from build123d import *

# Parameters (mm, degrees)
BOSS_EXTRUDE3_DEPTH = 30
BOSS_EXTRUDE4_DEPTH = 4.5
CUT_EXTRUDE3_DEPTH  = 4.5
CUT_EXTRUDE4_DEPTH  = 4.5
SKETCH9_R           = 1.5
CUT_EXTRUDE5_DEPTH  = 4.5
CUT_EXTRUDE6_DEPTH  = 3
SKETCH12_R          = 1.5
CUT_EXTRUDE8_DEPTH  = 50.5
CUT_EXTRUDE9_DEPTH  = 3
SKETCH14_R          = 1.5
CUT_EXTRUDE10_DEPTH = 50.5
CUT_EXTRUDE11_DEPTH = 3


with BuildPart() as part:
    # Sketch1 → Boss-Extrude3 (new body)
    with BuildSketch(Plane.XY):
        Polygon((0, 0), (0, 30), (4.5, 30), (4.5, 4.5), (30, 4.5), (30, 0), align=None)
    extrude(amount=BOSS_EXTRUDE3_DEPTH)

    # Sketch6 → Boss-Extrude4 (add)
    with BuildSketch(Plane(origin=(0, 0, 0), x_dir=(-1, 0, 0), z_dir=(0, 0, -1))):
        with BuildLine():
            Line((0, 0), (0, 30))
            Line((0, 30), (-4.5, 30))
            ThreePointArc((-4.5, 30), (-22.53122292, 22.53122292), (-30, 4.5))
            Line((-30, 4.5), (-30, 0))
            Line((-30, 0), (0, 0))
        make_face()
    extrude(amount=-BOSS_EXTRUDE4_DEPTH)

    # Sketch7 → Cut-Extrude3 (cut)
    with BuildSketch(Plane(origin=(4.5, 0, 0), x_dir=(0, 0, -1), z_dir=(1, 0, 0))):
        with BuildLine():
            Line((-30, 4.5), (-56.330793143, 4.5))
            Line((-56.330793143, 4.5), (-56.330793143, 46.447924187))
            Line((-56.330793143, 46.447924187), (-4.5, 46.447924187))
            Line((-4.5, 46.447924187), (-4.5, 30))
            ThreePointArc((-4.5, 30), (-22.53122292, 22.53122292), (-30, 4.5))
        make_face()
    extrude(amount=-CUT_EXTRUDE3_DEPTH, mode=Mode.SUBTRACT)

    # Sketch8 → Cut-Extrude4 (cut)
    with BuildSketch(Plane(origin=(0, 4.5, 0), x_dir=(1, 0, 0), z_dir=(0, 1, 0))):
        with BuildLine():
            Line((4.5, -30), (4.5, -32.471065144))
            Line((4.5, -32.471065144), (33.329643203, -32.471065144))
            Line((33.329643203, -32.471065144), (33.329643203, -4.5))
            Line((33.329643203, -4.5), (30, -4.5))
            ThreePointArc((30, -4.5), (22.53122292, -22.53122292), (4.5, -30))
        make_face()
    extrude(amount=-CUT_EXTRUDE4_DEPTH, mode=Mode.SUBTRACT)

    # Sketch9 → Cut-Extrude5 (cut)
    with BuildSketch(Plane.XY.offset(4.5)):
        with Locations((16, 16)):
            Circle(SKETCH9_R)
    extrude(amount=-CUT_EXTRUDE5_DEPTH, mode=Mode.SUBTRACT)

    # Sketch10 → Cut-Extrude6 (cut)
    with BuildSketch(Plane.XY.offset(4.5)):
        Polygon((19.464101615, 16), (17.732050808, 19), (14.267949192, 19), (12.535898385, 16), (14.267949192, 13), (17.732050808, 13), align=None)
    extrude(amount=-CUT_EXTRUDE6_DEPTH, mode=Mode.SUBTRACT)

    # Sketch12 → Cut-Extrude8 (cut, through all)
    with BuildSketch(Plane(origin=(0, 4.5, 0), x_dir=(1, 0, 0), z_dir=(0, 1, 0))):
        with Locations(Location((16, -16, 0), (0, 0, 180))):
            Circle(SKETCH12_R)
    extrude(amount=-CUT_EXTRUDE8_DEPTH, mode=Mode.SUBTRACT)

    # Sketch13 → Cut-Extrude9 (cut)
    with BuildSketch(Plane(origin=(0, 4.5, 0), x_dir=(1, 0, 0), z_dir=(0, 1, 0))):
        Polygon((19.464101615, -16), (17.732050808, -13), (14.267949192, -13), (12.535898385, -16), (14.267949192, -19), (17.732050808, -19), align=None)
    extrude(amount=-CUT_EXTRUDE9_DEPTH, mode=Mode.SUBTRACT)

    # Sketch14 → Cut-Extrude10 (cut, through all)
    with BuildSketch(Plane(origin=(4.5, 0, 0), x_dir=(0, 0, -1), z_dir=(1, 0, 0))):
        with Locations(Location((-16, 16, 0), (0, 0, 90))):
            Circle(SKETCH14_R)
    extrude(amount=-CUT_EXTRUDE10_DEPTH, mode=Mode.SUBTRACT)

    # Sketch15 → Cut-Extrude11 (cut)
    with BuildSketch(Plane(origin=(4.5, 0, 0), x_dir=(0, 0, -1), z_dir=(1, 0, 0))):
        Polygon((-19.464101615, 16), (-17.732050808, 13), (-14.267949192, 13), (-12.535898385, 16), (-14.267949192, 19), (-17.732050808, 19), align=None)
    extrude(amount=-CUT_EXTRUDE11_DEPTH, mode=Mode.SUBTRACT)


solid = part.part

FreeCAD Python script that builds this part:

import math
import FreeCAD as App
import Part
import Sketcher

V = App.Vector
Q = App.Units.Quantity

doc = App.newDocument("Part")
params = doc.addObject("Spreadsheet::Sheet", "Params")
for row, (alias, value) in enumerate([
    ("sketch1_width", "30 mm"),
    ("sketch1_width2", "25.5 mm"),
    ("pad1_length", "30 mm"),
    ("sketch2_radius", "25.5 mm"),
    ("sketch2_width", "30 mm"),
    ("pad2_length", "4.5 mm"),
    ("sketch3_radius", "25.5 mm"),
    ("pocket1_length", "4.5 mm"),
    ("sketch4_radius", "25.5 mm"),
    ("pocket2_length", "4.5 mm"),
    ("sketch5_diameter", "3 mm"),
    ("pocket3_length", "4.5 mm"),
    ("pocket4_length", "3 mm"),
    ("sketch7_diameter", "3 mm"),
    ("pocket6_length", "3 mm"),
    ("sketch9_diameter", "3 mm"),
    ("pocket8_length", "3 mm"),
], start=1):
    params.set(f"A{row}", alias)
    params.set(f"B{row}", "=" + value)
    params.setAlias(f"B{row}", alias)

body = doc.addObject("PartDesign::Body", "Body")

sketch1 = doc.addObject("Sketcher::SketchObject", "Sketch")
body.addObject(sketch1)
sketch1.AttachmentSupport = (doc.XY_Plane, [""])
sketch1.MapMode = "FlatFace"
sketch1.addGeometry([
    Part.LineSegment(V(0, 30, 0), V(0, 0, 0)),
    Part.LineSegment(V(0, 0, 0), V(30, 0, 0)),
    Part.LineSegment(V(30, 0, 0), V(30, 4.5, 0)),
    Part.LineSegment(V(30, 4.5, 0), V(4.5, 4.5, 0)),
    Part.LineSegment(V(4.5, 4.5, 0), V(4.5, 30, 0)),
    Part.LineSegment(V(4.5, 30, 0), V(0, 30, 0)),
], False)
sketch1.addConstraint([
    Sketcher.Constraint("Coincident", 0, 2, 1, 1),
    Sketcher.Constraint("Coincident", 1, 2, 2, 1),
    Sketcher.Constraint("Coincident", 2, 2, 3, 1),
    Sketcher.Constraint("Coincident", 3, 2, 4, 1),
    Sketcher.Constraint("Coincident", 4, 2, 5, 1),
    Sketcher.Constraint("Coincident", 5, 2, 0, 1),
    Sketcher.Constraint("Vertical", 0),
    Sketcher.Constraint("Horizontal", 1),
    Sketcher.Constraint("Vertical", 2),
    Sketcher.Constraint("Horizontal", 3),
    Sketcher.Constraint("Vertical", 4),
    Sketcher.Constraint("Horizontal", 5),
    Sketcher.Constraint("Coincident", 0, 2, -1, 1),
    Sketcher.Constraint("Equal", 1, 0),
    Sketcher.Constraint("Equal", 5, 2),
    Sketcher.Constraint("DistanceX", 1, 1, 1, 2, Q("30 mm")),
    Sketcher.Constraint("DistanceX", 3, 2, 3, 1, Q("25.5 mm")),
])
sketch1.setExpression("Constraints[15]", "Params.sketch1_width")
sketch1.setExpression("Constraints[16]", "Params.sketch1_width2")
pad1 = doc.addObject("PartDesign::Pad", "Pad")
body.addObject(pad1)
pad1.Profile = sketch1
pad1.setExpression("Length", "Params.pad1_length")

sketch2 = doc.addObject("Sketcher::SketchObject", "Sketch001")
body.addObject(sketch2)
sketch2.AttachmentSupport = (doc.XY_Plane, [""])
sketch2.MapMode = "FlatFace"
sketch2.addGeometry([
    Part.LineSegment(V(0, 0, 0), V(0, 30, 0)),
    Part.LineSegment(V(0, 30, 0), V(4.5, 30, 0)),
    Part.ArcOfCircle(Part.Circle(V(4.5, 4.5, 0), V(0, 0, 1), 25.5), math.radians(0), math.radians(90)),
    Part.LineSegment(V(30, 4.5, 0), V(30, 0, 0)),
    Part.LineSegment(V(30, 0, 0), V(0, 0, 0)),
], False)
sketch2.addConstraint([
    Sketcher.Constraint("Coincident", 0, 2, 1, 1),
    Sketcher.Constraint("Tangent", 1, 2, 2, 2),
    Sketcher.Constraint("Tangent", 2, 1, 3, 1),
    Sketcher.Constraint("Coincident", 3, 2, 4, 1),
    Sketcher.Constraint("Coincident", 4, 2, 0, 1),
    Sketcher.Constraint("Vertical", 0),
    Sketcher.Constraint("Horizontal", 1),
    Sketcher.Constraint("Vertical", 3),
    Sketcher.Constraint("Horizontal", 4),
    Sketcher.Constraint("Coincident", 4, 2, -1, 1),
    Sketcher.Constraint("Equal", 4, 0),
    Sketcher.Constraint("Radius", 2, Q("25.5 mm")),
    Sketcher.Constraint("DistanceX", 4, 2, 4, 1, Q("30 mm")),
])
sketch2.setExpression("Constraints[11]", "Params.sketch2_radius")
sketch2.setExpression("Constraints[12]", "Params.sketch2_width")
pad2 = doc.addObject("PartDesign::Pad", "Pad001")
body.addObject(pad2)
pad2.Profile = sketch2
pad2.setExpression("Length", "Params.pad2_length")

sketch3 = doc.addObject("Sketcher::SketchObject", "Sketch002")
body.addObject(sketch3)
sketch3.AttachmentSupport = (doc.YZ_Plane, [""])
sketch3.MapMode = "FlatFace"
sketch3.AttachmentOffset = App.Placement(V(0, 0, 4.5), App.Rotation())
sketch3.addGeometry([
    Part.LineSegment(V(4, 56, 0), V(4, 30, 0)),
    Part.ArcOfCircle(Part.Circle(V(4, 4, 0), V(0, 0, 1), 26), math.radians(0), math.radians(90)),
    Part.LineSegment(V(30, 4, 0), V(46, 4, 0)),
    Part.LineSegment(V(46, 4, 0), V(46, 56, 0)),
    Part.LineSegment(V(46, 56, 0), V(4, 56, 0)),
], False)
sketch3.addConstraint([
    Sketcher.Constraint("Coincident", 0, 2, 1, 2),
    Sketcher.Constraint("Coincident", 1, 1, 2, 1),
    Sketcher.Constraint("Coincident", 2, 2, 3, 1),
    Sketcher.Constraint("Coincident", 3, 2, 4, 1),
    Sketcher.Constraint("Coincident", 4, 2, 0, 1),
    Sketcher.Constraint("Vertical", 0),
    Sketcher.Constraint("Horizontal", 2),
    Sketcher.Constraint("Vertical", 3),
    Sketcher.Constraint("Horizontal", 4),
    Sketcher.Constraint("Vertical", 1, 3, 0, 2),
    Sketcher.Constraint("Radius", 1, Q("25.5 mm")),
    Sketcher.Constraint("DistanceY", -1, 1, 0, 2, Q("30 mm")),
    Sketcher.Constraint("DistanceX", -1, 1, 1, 1, Q("30 mm")),
    Sketcher.Constraint("DistanceY", -1, 1, 1, 1, Q("4.5 mm")),
    Sketcher.Constraint("DistanceX", 2, 1, 2, 2, Q("16.447924 mm")),
    Sketcher.Constraint("DistanceY", 0, 2, 0, 1, Q("26.330793 mm")),
])
sketch3.setExpression("Constraints[10]", "Params.sketch3_radius")
pocket1 = doc.addObject("PartDesign::Pocket", "Pocket")
body.addObject(pocket1)
pocket1.Profile = sketch3
pocket1.setExpression("Length", "Params.pocket1_length")

sketch4 = doc.addObject("Sketcher::SketchObject", "Sketch003")
body.addObject(sketch4)
sketch4.AttachmentSupport = (doc.XZ_Plane, [""])
sketch4.MapMode = "FlatFace"
sketch4.AttachmentOffset = App.Placement(V(0, 0, -4.5), App.Rotation())
sketch4.addGeometry([
    Part.LineSegment(V(4.5, 30, 0), V(4.5, 32.5, 0)),
    Part.LineSegment(V(4.5, 32.5, 0), V(33.3, 32.5, 0)),
    Part.LineSegment(V(33.3, 32.5, 0), V(33.3, 4.5, 0)),
    Part.LineSegment(V(33.3, 4.5, 0), V(30, 4.5, 0)),
    Part.ArcOfCircle(Part.Circle(V(4.5, 4.5, 0), V(0, 0, 1), 25.5), math.radians(0), math.radians(90)),
], False)
sketch4.addConstraint([
    Sketcher.Constraint("Coincident", 0, 2, 1, 1),
    Sketcher.Constraint("Coincident", 1, 2, 2, 1),
    Sketcher.Constraint("Coincident", 2, 2, 3, 1),
    Sketcher.Constraint("Coincident", 3, 2, 4, 1),
    Sketcher.Constraint("Coincident", 4, 2, 0, 1),
    Sketcher.Constraint("Vertical", 0),
    Sketcher.Constraint("Horizontal", 1),
    Sketcher.Constraint("Vertical", 2),
    Sketcher.Constraint("Horizontal", 3),
    Sketcher.Constraint("Horizontal", 4, 3, 2, 2),
    Sketcher.Constraint("Vertical", 4, 3, 0, 2),
    Sketcher.Constraint("Radius", 4, Q("25.5 mm")),
    Sketcher.Constraint("DistanceX", -1, 1, 3, 2, Q("30 mm")),
    Sketcher.Constraint("DistanceY", -1, 1, 4, 2, Q("30 mm")),
    Sketcher.Constraint("DistanceX", 1, 1, 1, 2, Q("28.829643 mm")),
    Sketcher.Constraint("DistanceY", 0, 1, 0, 2, Q("2.471065 mm")),
])
sketch4.setExpression("Constraints[11]", "Params.sketch4_radius")
pocket2 = doc.addObject("PartDesign::Pocket", "Pocket001")
body.addObject(pocket2)
pocket2.Profile = sketch4
pocket2.setExpression("Length", "Params.pocket2_length")
pocket2.Reversed = True

sketch5 = doc.addObject("Sketcher::SketchObject", "Sketch004")
body.addObject(sketch5)
sketch5.AttachmentSupport = (doc.XY_Plane, [""])
sketch5.MapMode = "FlatFace"
sketch5.AttachmentOffset = App.Placement(V(0, 0, 4.5), App.Rotation())
sketch5.addGeometry(Part.Circle(V(16, 16, 0), V(0, 0, 1), 1.5), False)
sketch5.addConstraint([
    Sketcher.Constraint("Diameter", 0, Q("3 mm")),
    Sketcher.Constraint("DistanceX", -1, 1, 0, 3, Q("16 mm")),
    Sketcher.Constraint("DistanceY", -1, 1, 0, 3, Q("16 mm")),
])
sketch5.setExpression("Constraints[0]", "Params.sketch5_diameter")
pocket3 = doc.addObject("PartDesign::Pocket", "Pocket002")
body.addObject(pocket3)
pocket3.Profile = sketch5
pocket3.setExpression("Length", "Params.pocket3_length")

sketch6 = doc.addObject("Sketcher::SketchObject", "Sketch005")
body.addObject(sketch6)
sketch6.AttachmentSupport = (doc.XY_Plane, [""])
sketch6.MapMode = "FlatFace"
sketch6.AttachmentOffset = App.Placement(V(0, 0, 4.5), App.Rotation())
sketch6.addGeometry([
    Part.LineSegment(V(19.5, 16, 0), V(17.7, 19, 0)),
    Part.LineSegment(V(17.7, 19, 0), V(14.3, 19, 0)),
    Part.LineSegment(V(14.3, 19, 0), V(12.5, 16, 0)),
    Part.LineSegment(V(12.5, 16, 0), V(14.3, 13, 0)),
    Part.LineSegment(V(14.3, 13, 0), V(17.7, 13, 0)),
    Part.LineSegment(V(17.7, 13, 0), V(19.5, 16, 0)),
], False)
sketch6.addConstraint([
    Sketcher.Constraint("Coincident", 0, 2, 1, 1),
    Sketcher.Constraint("Coincident", 1, 2, 2, 1),
    Sketcher.Constraint("Coincident", 2, 2, 3, 1),
    Sketcher.Constraint("Coincident", 3, 2, 4, 1),
    Sketcher.Constraint("Coincident", 4, 2, 5, 1),
    Sketcher.Constraint("Coincident", 5, 2, 0, 1),
    Sketcher.Constraint("Horizontal", 1),
    Sketcher.Constraint("Horizontal", 4),
    Sketcher.Constraint("Parallel", 0, 3),
    Sketcher.Constraint("Parallel", 2, 5),
    Sketcher.Constraint("Horizontal", 2, 2, 5, 2),
    Sketcher.Constraint("Vertical", 1, 2, 3, 2),
    Sketcher.Constraint("Vertical", 0, 2, 4, 2),
    Sketcher.Constraint("Angle", 0, Q("120 deg")),
    Sketcher.Constraint("DistanceY", -1, 1, 0, 2, Q("19 mm")),
    Sketcher.Constraint("DistanceY", -1, 1, 2, 2, Q("16 mm")),
    Sketcher.Constraint("DistanceX", 1, 2, 1, 1, Q("3.464102 mm")),
    Sketcher.Constraint("DistanceX", -1, 1, 2, 2, Q("12.535898 mm")),
])
pocket4 = doc.addObject("PartDesign::Pocket", "Pocket003")
body.addObject(pocket4)
pocket4.Profile = sketch6
pocket4.setExpression("Length", "Params.pocket4_length")

sketch7 = doc.addObject("Sketcher::SketchObject", "Sketch006")
body.addObject(sketch7)
sketch7.AttachmentSupport = (doc.XZ_Plane, [""])
sketch7.MapMode = "FlatFace"
sketch7.AttachmentOffset = App.Placement(V(0, 0, -4.5), App.Rotation())
sketch7.addGeometry(Part.Circle(V(16, 16, 0), V(0, 0, 1), 1.5), False)
sketch7.addConstraint([
    Sketcher.Constraint("Diameter", 0, Q("3 mm")),
    Sketcher.Constraint("DistanceX", -1, 1, 0, 3, Q("16 mm")),
    Sketcher.Constraint("DistanceY", -1, 1, 0, 3, Q("16 mm")),
])
sketch7.setExpression("Constraints[0]", "Params.sketch7_diameter")
pocket5 = doc.addObject("PartDesign::Pocket", "Pocket004")
body.addObject(pocket5)
pocket5.Profile = sketch7
pocket5.Type = "ThroughAll"
pocket5.Reversed = True

sketch8 = doc.addObject("Sketcher::SketchObject", "Sketch007")
body.addObject(sketch8)
sketch8.AttachmentSupport = (doc.XZ_Plane, [""])
sketch8.MapMode = "FlatFace"
sketch8.AttachmentOffset = App.Placement(V(0, 0, -4.5), App.Rotation())
sketch8.addGeometry([
    Part.LineSegment(V(19.5, 16, 0), V(17.7, 13, 0)),
    Part.LineSegment(V(17.7, 13, 0), V(14.3, 13, 0)),
    Part.LineSegment(V(14.3, 13, 0), V(12.5, 16, 0)),
    Part.LineSegment(V(12.5, 16, 0), V(14.3, 19, 0)),
    Part.LineSegment(V(14.3, 19, 0), V(17.7, 19, 0)),
    Part.LineSegment(V(17.7, 19, 0), V(19.5, 16, 0)),
], False)
sketch8.addConstraint([
    Sketcher.Constraint("Coincident", 0, 2, 1, 1),
    Sketcher.Constraint("Coincident", 1, 2, 2, 1),
    Sketcher.Constraint("Coincident", 2, 2, 3, 1),
    Sketcher.Constraint("Coincident", 3, 2, 4, 1),
    Sketcher.Constraint("Coincident", 4, 2, 5, 1),
    Sketcher.Constraint("Coincident", 5, 2, 0, 1),
    Sketcher.Constraint("Horizontal", 1),
    Sketcher.Constraint("Horizontal", 4),
    Sketcher.Constraint("Parallel", 0, 3),
    Sketcher.Constraint("Parallel", 2, 5),
    Sketcher.Constraint("Horizontal", 2, 2, 5, 2),
    Sketcher.Constraint("Vertical", 1, 2, 3, 2),
    Sketcher.Constraint("Vertical", 0, 2, 4, 2),
    Sketcher.Constraint("Angle", 0, Q("-120 deg")),
    Sketcher.Constraint("DistanceY", -1, 1, 0, 2, Q("13 mm")),
    Sketcher.Constraint("DistanceY", -1, 1, 2, 2, Q("16 mm")),
    Sketcher.Constraint("DistanceX", 1, 2, 1, 1, Q("3.464102 mm")),
    Sketcher.Constraint("DistanceX", -1, 1, 2, 2, Q("12.535898 mm")),
])
pocket6 = doc.addObject("PartDesign::Pocket", "Pocket005")
body.addObject(pocket6)
pocket6.Profile = sketch8
pocket6.setExpression("Length", "Params.pocket6_length")
pocket6.Reversed = True

sketch9 = doc.addObject("Sketcher::SketchObject", "Sketch008")
body.addObject(sketch9)
sketch9.AttachmentSupport = (doc.YZ_Plane, [""])
sketch9.MapMode = "FlatFace"
sketch9.AttachmentOffset = App.Placement(V(0, 0, 4.5), App.Rotation())
sketch9.addGeometry(Part.Circle(V(16, 16, 0), V(0, 0, 1), 1.5), False)
sketch9.addConstraint([
    Sketcher.Constraint("Diameter", 0, Q("3 mm")),
    Sketcher.Constraint("DistanceX", -1, 1, 0, 3, Q("16 mm")),
    Sketcher.Constraint("DistanceY", -1, 1, 0, 3, Q("16 mm")),
])
sketch9.setExpression("Constraints[0]", "Params.sketch9_diameter")
pocket7 = doc.addObject("PartDesign::Pocket", "Pocket006")
body.addObject(pocket7)
pocket7.Profile = sketch9
pocket7.Type = "ThroughAll"

sketch10 = doc.addObject("Sketcher::SketchObject", "Sketch009")
body.addObject(sketch10)
sketch10.AttachmentSupport = (doc.YZ_Plane, [""])
sketch10.MapMode = "FlatFace"
sketch10.AttachmentOffset = App.Placement(V(0, 0, 4.5), App.Rotation())
sketch10.addGeometry([
    Part.LineSegment(V(16, 19.5, 0), V(13, 17.7, 0)),
    Part.LineSegment(V(13, 17.7, 0), V(13, 14.3, 0)),
    Part.LineSegment(V(13, 14.3, 0), V(16, 12.5, 0)),
    Part.LineSegment(V(16, 12.5, 0), V(19, 14.3, 0)),
    Part.LineSegment(V(19, 14.3, 0), V(19, 17.7, 0)),
    Part.LineSegment(V(19, 17.7, 0), V(16, 19.5, 0)),
], False)
sketch10.addConstraint([
    Sketcher.Constraint("Coincident", 0, 2, 1, 1),
    Sketcher.Constraint("Coincident", 1, 2, 2, 1),
    Sketcher.Constraint("Coincident", 2, 2, 3, 1),
    Sketcher.Constraint("Coincident", 3, 2, 4, 1),
    Sketcher.Constraint("Coincident", 4, 2, 5, 1),
    Sketcher.Constraint("Coincident", 5, 2, 0, 1),
    Sketcher.Constraint("Vertical", 1),
    Sketcher.Constraint("Vertical", 4),
    Sketcher.Constraint("Parallel", 0, 3),
    Sketcher.Constraint("Parallel", 2, 5),
    Sketcher.Constraint("Horizontal", 1, 2, 3, 2),
    Sketcher.Constraint("Horizontal", 0, 2, 4, 2),
    Sketcher.Constraint("Vertical", 2, 2, 5, 2),
    Sketcher.Constraint("Angle", 0, Q("-150 deg")),
    Sketcher.Constraint("DistanceX", -1, 1, 0, 2, Q("13 mm")),
    Sketcher.Constraint("DistanceX", -1, 1, 2, 2, Q("16 mm")),
    Sketcher.Constraint("DistanceY", 1, 2, 1, 1, Q("3.464102 mm")),
    Sketcher.Constraint("DistanceY", -1, 1, 2, 2, Q("12.535898 mm")),
])
pocket8 = doc.addObject("PartDesign::Pocket", "Pocket007")
body.addObject(pocket8)
pocket8.Profile = sketch10
pocket8.setExpression("Length", "Params.pocket8_length")

doc.recompute()
